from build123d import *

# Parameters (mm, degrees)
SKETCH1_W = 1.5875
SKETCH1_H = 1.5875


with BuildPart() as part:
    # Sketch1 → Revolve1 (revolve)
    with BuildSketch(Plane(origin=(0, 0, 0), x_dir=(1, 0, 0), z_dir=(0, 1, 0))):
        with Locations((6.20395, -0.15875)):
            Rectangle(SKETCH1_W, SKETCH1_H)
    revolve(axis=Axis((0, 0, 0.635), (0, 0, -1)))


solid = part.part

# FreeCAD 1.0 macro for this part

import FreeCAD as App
import Part
import Sketcher

V = App.Vector
Q = App.Units.Quantity

doc = App.newDocument("Part")
body = doc.addObject("PartDesign::Body", "Body")

# Sketch on XZ plane
sketch1 = body.newObject("Sketcher::SketchObject", "Sketch")
sketch1.AttachmentSupport = (doc.getObject("XZ_Plane"), [""])
sketch1.MapMode = "FlatFace"
sketch1.addGeometry(Part.LineSegment(V(5.4, -0.6, 0), V(5.4, 1, 0)), False)
sketch1.addGeometry(Part.LineSegment(V(5.4, 1, 0), V(7, 1, 0)), False)
sketch1.addGeometry(Part.LineSegment(V(7, 1, 0), V(7, -0.6, 0)), False)
sketch1.addGeometry(Part.LineSegment(V(7, -0.6, 0), V(5.4, -0.6, 0)), False)
sketch1.addConstraint(Sketcher.Constraint("Coincident", 0, 2, 1, 1))
sketch1.addConstraint(Sketcher.Constraint("Coincident", 1, 2, 2, 1))
sketch1.addConstraint(Sketcher.Constraint("Coincident", 2, 2, 3, 1))
sketch1.addConstraint(Sketcher.Constraint("Coincident", 3, 2, 0, 1))
sketch1.addConstraint(Sketcher.Constraint("Vertical", 0))
sketch1.addConstraint(Sketcher.Constraint("Horizontal", 1))
sketch1.addConstraint(Sketcher.Constraint("Vertical", 2))
sketch1.addConstraint(Sketcher.Constraint("Horizontal", 3))
sketch1.addConstraint(Sketcher.Constraint("Equal", 3, 0))
sketch1.addConstraint(Sketcher.Constraint("DistanceX", 1, 1, 1, 2, Q("0.0625 in")))
sketch1.addConstraint(Sketcher.Constraint("DistanceX", -1, 1, 0, 2, Q("0.213 in")))
sketch1.addConstraint(Sketcher.Constraint("DistanceY", 2, 2, -1, 1, Q("0.025 in")))
revolution = body.newObject("PartDesign::Revolution", "Revolution")
revolution.Profile = sketch1
revolution.ReferenceAxis = (sketch1, ["V_Axis"])
revolution.Angle = 360

doc.recompute()
